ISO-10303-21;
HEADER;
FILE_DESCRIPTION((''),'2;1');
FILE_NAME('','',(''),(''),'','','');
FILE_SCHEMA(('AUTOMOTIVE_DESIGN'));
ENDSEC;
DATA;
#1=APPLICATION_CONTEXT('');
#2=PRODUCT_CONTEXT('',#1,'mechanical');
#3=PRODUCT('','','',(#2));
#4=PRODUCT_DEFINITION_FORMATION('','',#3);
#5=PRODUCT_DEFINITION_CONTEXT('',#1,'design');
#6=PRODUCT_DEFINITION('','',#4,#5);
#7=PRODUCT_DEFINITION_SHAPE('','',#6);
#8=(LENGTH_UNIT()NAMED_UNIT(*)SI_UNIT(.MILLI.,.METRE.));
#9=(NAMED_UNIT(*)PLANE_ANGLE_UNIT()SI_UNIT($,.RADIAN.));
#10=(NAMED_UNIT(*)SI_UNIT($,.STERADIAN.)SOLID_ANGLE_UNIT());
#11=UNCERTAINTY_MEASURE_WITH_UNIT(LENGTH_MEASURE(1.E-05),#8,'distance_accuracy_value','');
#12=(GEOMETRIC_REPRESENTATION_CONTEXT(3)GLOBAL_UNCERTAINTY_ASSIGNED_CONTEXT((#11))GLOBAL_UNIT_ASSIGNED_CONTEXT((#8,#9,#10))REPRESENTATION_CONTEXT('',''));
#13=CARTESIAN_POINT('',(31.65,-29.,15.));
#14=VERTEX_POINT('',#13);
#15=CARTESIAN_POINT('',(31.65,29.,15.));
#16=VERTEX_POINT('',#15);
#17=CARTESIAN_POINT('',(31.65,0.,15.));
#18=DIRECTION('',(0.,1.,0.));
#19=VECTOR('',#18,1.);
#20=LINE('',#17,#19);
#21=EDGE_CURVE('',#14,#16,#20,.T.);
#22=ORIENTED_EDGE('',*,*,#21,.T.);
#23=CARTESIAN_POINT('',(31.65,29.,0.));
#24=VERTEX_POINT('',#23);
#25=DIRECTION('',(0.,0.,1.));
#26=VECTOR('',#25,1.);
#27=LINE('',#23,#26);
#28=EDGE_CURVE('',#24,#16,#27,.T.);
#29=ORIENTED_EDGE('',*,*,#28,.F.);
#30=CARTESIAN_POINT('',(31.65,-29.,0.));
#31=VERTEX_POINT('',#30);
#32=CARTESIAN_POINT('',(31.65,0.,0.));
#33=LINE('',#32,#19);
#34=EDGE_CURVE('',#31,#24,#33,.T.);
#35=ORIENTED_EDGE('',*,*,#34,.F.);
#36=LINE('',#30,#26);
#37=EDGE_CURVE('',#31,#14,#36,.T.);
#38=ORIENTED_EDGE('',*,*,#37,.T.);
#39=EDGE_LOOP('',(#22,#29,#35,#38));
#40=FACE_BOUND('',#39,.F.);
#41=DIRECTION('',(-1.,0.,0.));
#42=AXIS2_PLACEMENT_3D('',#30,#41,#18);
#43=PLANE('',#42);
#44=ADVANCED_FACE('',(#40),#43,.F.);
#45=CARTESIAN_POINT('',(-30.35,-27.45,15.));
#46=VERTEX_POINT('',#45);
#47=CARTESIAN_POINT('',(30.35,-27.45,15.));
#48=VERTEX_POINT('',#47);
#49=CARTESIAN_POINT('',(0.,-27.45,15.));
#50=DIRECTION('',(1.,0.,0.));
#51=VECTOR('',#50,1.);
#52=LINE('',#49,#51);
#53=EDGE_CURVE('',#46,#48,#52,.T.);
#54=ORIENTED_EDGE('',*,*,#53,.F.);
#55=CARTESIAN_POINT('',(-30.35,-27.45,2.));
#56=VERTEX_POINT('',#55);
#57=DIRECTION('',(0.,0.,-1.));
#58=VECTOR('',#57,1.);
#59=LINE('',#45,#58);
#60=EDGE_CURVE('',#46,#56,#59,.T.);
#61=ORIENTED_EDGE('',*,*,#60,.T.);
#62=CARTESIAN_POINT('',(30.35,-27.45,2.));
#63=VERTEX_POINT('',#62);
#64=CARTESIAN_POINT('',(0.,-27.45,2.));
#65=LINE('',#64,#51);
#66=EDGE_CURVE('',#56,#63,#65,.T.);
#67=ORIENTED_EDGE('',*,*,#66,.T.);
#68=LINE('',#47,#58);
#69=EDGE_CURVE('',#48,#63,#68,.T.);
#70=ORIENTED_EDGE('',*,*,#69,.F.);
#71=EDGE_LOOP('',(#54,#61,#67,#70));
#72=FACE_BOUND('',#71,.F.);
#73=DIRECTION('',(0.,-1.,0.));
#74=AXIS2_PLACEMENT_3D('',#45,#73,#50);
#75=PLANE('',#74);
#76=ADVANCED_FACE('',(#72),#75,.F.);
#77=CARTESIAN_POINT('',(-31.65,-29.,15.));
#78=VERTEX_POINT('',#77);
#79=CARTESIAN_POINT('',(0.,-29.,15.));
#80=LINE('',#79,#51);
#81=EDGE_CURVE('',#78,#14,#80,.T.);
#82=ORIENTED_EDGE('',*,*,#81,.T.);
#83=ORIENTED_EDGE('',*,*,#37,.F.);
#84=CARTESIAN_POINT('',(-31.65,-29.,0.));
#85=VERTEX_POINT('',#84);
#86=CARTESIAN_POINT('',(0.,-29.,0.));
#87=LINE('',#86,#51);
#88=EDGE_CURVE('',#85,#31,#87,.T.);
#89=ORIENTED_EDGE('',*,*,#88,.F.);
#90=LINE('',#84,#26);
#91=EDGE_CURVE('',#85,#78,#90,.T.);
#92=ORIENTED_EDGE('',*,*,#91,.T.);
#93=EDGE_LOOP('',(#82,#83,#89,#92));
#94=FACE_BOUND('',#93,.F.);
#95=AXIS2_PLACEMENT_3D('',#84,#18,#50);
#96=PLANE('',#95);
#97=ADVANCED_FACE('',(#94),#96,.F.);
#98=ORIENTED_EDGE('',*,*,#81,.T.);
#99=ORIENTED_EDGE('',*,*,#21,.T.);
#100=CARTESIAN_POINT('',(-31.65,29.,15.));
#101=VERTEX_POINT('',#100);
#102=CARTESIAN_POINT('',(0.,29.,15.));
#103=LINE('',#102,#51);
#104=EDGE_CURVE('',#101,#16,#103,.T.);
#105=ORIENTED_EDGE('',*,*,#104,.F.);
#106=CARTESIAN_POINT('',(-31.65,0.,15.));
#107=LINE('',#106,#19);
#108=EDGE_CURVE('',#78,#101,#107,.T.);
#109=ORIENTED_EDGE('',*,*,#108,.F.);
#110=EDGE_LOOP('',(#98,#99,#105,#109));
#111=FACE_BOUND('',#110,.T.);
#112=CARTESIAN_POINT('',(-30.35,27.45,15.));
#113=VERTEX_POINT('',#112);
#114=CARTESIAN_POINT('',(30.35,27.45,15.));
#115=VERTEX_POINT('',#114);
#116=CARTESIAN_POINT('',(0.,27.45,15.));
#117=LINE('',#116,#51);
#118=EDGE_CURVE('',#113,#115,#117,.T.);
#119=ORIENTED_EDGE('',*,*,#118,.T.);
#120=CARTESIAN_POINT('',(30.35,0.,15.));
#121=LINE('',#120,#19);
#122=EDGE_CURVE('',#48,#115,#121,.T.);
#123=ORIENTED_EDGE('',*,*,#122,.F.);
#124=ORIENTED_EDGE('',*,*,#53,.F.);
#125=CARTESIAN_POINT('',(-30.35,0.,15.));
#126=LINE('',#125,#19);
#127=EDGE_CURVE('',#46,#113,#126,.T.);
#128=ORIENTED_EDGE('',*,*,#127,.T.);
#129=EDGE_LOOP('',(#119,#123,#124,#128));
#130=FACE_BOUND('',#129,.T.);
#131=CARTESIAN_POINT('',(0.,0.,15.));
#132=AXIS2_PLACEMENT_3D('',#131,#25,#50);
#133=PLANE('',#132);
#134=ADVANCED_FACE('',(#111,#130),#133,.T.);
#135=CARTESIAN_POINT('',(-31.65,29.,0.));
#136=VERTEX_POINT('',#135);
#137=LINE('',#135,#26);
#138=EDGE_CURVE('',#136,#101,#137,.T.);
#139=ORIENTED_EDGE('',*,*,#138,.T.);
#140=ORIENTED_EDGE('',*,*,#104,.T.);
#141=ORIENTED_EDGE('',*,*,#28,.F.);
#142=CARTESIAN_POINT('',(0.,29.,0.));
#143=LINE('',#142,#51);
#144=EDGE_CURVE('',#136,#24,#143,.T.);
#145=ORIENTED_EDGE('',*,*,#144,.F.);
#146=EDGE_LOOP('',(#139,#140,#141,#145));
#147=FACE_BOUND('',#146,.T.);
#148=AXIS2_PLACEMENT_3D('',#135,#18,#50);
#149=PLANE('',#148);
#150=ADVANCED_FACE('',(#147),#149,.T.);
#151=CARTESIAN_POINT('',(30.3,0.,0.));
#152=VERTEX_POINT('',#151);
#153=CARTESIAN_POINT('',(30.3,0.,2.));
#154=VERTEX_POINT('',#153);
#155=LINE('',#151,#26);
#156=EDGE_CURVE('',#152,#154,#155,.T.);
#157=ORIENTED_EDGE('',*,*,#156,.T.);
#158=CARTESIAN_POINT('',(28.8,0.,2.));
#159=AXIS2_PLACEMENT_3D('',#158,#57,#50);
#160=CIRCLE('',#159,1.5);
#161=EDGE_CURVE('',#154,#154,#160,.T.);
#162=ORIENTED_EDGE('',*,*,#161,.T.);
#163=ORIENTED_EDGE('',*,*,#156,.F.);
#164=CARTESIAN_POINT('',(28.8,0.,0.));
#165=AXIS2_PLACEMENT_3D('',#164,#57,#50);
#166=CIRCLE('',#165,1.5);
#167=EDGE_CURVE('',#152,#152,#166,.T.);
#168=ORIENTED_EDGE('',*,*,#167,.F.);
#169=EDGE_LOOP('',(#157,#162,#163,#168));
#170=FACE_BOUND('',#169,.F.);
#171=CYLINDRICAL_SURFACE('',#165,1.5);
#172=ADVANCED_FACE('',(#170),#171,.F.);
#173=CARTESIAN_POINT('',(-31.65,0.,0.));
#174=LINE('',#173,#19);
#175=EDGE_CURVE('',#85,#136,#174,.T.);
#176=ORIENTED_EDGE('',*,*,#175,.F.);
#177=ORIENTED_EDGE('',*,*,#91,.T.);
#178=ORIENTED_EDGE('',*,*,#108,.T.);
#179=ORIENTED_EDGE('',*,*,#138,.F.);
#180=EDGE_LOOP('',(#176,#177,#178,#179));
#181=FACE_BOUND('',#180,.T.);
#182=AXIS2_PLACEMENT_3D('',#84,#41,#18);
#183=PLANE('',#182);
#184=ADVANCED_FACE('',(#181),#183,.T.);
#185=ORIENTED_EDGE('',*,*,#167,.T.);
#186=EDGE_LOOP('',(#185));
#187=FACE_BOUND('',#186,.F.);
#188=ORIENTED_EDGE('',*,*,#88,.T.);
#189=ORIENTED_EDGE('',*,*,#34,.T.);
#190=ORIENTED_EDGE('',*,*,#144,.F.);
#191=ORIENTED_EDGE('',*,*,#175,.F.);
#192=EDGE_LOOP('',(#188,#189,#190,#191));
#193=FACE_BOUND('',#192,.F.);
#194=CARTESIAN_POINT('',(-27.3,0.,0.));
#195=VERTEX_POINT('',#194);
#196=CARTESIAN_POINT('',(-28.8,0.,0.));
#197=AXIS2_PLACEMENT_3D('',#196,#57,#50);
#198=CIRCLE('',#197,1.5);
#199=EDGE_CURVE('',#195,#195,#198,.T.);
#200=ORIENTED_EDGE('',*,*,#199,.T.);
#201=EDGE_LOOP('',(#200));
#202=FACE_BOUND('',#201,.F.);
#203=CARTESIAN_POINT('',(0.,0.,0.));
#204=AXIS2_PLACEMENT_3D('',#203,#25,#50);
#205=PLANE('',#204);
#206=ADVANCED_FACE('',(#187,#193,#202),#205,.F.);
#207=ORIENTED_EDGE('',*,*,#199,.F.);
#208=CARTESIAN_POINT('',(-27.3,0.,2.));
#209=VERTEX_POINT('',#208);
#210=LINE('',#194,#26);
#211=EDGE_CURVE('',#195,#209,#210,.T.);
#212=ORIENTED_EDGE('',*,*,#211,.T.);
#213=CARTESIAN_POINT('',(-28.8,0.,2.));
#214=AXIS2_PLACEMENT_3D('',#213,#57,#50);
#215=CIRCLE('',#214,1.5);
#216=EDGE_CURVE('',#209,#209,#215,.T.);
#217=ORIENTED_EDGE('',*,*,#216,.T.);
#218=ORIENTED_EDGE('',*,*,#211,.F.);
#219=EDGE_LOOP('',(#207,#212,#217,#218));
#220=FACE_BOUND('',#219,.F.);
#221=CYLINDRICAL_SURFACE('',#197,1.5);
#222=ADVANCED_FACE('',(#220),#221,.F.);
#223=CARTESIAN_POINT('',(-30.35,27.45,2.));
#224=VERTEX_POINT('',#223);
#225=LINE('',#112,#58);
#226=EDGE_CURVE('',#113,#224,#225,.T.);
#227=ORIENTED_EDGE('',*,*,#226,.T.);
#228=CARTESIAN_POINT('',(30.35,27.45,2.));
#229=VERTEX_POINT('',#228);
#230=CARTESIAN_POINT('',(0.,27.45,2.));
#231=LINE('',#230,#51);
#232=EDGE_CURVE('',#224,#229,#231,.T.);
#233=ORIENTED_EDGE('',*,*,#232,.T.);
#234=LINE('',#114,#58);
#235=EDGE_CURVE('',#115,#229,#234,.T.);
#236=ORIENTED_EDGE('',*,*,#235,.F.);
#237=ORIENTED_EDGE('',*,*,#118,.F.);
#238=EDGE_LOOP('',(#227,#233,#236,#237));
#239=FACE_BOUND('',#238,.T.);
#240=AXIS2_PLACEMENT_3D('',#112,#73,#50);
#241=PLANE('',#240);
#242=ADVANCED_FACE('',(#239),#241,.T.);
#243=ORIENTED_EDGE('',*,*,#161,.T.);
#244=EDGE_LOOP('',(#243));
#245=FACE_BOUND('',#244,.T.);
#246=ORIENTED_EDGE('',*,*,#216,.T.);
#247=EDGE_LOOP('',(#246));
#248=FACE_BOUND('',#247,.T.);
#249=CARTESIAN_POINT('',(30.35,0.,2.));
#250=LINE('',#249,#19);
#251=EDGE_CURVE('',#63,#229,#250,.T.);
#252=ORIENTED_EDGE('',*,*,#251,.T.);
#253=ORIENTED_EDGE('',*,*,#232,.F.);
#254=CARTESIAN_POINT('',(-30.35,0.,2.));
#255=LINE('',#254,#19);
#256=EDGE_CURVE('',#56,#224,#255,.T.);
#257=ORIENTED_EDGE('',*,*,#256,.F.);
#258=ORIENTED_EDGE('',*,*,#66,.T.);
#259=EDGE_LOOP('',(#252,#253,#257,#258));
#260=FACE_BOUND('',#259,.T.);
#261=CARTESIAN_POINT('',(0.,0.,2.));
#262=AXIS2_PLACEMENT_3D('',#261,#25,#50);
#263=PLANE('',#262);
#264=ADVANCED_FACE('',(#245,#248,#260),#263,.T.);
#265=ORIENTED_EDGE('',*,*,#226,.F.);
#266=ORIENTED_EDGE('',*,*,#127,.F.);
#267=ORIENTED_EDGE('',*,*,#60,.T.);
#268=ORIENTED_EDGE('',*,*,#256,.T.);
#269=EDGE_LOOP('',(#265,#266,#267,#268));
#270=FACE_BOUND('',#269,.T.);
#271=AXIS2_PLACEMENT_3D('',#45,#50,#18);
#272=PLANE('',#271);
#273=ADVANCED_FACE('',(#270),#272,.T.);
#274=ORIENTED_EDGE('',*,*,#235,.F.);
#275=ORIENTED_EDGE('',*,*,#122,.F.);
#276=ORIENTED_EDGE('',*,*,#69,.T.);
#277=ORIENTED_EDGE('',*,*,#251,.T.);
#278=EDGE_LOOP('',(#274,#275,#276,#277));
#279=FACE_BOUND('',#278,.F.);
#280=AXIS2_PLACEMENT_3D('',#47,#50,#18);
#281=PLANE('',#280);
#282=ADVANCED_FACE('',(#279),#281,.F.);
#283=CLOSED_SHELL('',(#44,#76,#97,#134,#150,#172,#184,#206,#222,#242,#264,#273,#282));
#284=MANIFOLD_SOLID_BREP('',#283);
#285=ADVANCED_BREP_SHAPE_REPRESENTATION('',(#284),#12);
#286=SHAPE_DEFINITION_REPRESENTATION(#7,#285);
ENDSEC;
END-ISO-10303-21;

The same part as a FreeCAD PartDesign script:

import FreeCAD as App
import Part
import Sketcher

V = App.Vector


def add_polygon(sketch, points):
    """Adds a closed chain of lines whose ends are joined by coincident constraints."""
    first, n = sketch.GeometryCount, len(points)
    for a, b in zip(points, points[1:] + points[:1]):
        sketch.addGeometry(Part.LineSegment(App.Vector(*a, 0), App.Vector(*b, 0)), False)
    for i in range(n):
        sketch.addConstraint(Sketcher.Constraint("Coincident", first + i, 2, first + (i + 1) % n, 1))

doc = App.newDocument("Part")
body = doc.addObject("PartDesign::Body", "Body")

# Sketch on XY plane
sketch1 = body.newObject("Sketcher::SketchObject", "Sketch")
sketch1.AttachmentSupport = (doc.getObject("XY_Plane"), [""])
sketch1.MapMode = "FlatFace"
add_polygon(sketch1, [(-31.65, 29), (-31.65, -29), (31.65, -29), (31.65, 29)])  # lines 0-3
sketch1.addConstraint([
    Sketcher.Constraint("Vertical", 0),
    Sketcher.Constraint("Horizontal", 1),
    Sketcher.Constraint("Vertical", 2),
    Sketcher.Constraint("Horizontal", 3),
    Sketcher.Constraint("Symmetric", 0, 2, 2, 2, -1, 1),
    Sketcher.Constraint("DistanceY", 0, 2, 0, 1, 58.0),
    Sketcher.Constraint("DistanceX", 1, 1, 1, 2, 63.3),
])
pad1 = body.newObject("PartDesign::Pad", "Pad")
pad1.Profile = sketch1
pad1.Length = 15

# Sketch on XY plane
sketch2 = body.newObject("Sketcher::SketchObject", "Sketch001")
sketch2.AttachmentSupport = (doc.getObject("XY_Plane"), [""])
sketch2.MapMode = "FlatFace"
sketch2.AttachmentOffset = App.Placement(V(0, 0, 15), App.Rotation())
add_polygon(sketch2, [(-30.35, 27.45), (-30.35, -27.45), (30.35, -27.45), (30.35, 27.45)])  # lines 0-3
sketch2.addConstraint([
    Sketcher.Constraint("Vertical", 0),
    Sketcher.Constraint("Horizontal", 1),
    Sketcher.Constraint("Vertical", 2),
    Sketcher.Constraint("Horizontal", 3),
    Sketcher.Constraint("Symmetric", 0, 2, 2, 2, -1, 1),
    Sketcher.Constraint("DistanceX", 1, 1, 1, 2, 60.7),
    Sketcher.Constraint("DistanceY", 0, 2, 0, 1, 54.9),
])
pocket1 = body.newObject("PartDesign::Pocket", "Pocket")
pocket1.Profile = sketch2
pocket1.Length = 13

# Sketch on XY plane
sketch3 = body.newObject("Sketcher::SketchObject", "Sketch002")
sketch3.AttachmentSupport = (doc.getObject("XY_Plane"), [""])
sketch3.MapMode = "FlatFace"
sketch3.addGeometry([
    Part.Circle(V(28.8, 0, 0), V(0, 0, 1), 1.5),
    Part.Circle(V(-28.8, 0, 0), V(0, 0, 1), 1.5),
], False)
sketch3.addConstraint([
    Sketcher.Constraint("Equal", 0, 1),
    Sketcher.Constraint("Symmetric", 0, 3, 1, 3, -1, 1),
    Sketcher.Constraint("PointOnObject", 0, 3, -1),
    Sketcher.Constraint("Diameter", 0, 3.0),
    Sketcher.Constraint("DistanceX", -1, 1, 0, 3, 28.8),
])
pocket2 = body.newObject("PartDesign::Pocket", "Pocket001")
pocket2.Profile = sketch3
pocket2.Type = "ThroughAll"
pocket2.Reversed = True

doc.recompute()
